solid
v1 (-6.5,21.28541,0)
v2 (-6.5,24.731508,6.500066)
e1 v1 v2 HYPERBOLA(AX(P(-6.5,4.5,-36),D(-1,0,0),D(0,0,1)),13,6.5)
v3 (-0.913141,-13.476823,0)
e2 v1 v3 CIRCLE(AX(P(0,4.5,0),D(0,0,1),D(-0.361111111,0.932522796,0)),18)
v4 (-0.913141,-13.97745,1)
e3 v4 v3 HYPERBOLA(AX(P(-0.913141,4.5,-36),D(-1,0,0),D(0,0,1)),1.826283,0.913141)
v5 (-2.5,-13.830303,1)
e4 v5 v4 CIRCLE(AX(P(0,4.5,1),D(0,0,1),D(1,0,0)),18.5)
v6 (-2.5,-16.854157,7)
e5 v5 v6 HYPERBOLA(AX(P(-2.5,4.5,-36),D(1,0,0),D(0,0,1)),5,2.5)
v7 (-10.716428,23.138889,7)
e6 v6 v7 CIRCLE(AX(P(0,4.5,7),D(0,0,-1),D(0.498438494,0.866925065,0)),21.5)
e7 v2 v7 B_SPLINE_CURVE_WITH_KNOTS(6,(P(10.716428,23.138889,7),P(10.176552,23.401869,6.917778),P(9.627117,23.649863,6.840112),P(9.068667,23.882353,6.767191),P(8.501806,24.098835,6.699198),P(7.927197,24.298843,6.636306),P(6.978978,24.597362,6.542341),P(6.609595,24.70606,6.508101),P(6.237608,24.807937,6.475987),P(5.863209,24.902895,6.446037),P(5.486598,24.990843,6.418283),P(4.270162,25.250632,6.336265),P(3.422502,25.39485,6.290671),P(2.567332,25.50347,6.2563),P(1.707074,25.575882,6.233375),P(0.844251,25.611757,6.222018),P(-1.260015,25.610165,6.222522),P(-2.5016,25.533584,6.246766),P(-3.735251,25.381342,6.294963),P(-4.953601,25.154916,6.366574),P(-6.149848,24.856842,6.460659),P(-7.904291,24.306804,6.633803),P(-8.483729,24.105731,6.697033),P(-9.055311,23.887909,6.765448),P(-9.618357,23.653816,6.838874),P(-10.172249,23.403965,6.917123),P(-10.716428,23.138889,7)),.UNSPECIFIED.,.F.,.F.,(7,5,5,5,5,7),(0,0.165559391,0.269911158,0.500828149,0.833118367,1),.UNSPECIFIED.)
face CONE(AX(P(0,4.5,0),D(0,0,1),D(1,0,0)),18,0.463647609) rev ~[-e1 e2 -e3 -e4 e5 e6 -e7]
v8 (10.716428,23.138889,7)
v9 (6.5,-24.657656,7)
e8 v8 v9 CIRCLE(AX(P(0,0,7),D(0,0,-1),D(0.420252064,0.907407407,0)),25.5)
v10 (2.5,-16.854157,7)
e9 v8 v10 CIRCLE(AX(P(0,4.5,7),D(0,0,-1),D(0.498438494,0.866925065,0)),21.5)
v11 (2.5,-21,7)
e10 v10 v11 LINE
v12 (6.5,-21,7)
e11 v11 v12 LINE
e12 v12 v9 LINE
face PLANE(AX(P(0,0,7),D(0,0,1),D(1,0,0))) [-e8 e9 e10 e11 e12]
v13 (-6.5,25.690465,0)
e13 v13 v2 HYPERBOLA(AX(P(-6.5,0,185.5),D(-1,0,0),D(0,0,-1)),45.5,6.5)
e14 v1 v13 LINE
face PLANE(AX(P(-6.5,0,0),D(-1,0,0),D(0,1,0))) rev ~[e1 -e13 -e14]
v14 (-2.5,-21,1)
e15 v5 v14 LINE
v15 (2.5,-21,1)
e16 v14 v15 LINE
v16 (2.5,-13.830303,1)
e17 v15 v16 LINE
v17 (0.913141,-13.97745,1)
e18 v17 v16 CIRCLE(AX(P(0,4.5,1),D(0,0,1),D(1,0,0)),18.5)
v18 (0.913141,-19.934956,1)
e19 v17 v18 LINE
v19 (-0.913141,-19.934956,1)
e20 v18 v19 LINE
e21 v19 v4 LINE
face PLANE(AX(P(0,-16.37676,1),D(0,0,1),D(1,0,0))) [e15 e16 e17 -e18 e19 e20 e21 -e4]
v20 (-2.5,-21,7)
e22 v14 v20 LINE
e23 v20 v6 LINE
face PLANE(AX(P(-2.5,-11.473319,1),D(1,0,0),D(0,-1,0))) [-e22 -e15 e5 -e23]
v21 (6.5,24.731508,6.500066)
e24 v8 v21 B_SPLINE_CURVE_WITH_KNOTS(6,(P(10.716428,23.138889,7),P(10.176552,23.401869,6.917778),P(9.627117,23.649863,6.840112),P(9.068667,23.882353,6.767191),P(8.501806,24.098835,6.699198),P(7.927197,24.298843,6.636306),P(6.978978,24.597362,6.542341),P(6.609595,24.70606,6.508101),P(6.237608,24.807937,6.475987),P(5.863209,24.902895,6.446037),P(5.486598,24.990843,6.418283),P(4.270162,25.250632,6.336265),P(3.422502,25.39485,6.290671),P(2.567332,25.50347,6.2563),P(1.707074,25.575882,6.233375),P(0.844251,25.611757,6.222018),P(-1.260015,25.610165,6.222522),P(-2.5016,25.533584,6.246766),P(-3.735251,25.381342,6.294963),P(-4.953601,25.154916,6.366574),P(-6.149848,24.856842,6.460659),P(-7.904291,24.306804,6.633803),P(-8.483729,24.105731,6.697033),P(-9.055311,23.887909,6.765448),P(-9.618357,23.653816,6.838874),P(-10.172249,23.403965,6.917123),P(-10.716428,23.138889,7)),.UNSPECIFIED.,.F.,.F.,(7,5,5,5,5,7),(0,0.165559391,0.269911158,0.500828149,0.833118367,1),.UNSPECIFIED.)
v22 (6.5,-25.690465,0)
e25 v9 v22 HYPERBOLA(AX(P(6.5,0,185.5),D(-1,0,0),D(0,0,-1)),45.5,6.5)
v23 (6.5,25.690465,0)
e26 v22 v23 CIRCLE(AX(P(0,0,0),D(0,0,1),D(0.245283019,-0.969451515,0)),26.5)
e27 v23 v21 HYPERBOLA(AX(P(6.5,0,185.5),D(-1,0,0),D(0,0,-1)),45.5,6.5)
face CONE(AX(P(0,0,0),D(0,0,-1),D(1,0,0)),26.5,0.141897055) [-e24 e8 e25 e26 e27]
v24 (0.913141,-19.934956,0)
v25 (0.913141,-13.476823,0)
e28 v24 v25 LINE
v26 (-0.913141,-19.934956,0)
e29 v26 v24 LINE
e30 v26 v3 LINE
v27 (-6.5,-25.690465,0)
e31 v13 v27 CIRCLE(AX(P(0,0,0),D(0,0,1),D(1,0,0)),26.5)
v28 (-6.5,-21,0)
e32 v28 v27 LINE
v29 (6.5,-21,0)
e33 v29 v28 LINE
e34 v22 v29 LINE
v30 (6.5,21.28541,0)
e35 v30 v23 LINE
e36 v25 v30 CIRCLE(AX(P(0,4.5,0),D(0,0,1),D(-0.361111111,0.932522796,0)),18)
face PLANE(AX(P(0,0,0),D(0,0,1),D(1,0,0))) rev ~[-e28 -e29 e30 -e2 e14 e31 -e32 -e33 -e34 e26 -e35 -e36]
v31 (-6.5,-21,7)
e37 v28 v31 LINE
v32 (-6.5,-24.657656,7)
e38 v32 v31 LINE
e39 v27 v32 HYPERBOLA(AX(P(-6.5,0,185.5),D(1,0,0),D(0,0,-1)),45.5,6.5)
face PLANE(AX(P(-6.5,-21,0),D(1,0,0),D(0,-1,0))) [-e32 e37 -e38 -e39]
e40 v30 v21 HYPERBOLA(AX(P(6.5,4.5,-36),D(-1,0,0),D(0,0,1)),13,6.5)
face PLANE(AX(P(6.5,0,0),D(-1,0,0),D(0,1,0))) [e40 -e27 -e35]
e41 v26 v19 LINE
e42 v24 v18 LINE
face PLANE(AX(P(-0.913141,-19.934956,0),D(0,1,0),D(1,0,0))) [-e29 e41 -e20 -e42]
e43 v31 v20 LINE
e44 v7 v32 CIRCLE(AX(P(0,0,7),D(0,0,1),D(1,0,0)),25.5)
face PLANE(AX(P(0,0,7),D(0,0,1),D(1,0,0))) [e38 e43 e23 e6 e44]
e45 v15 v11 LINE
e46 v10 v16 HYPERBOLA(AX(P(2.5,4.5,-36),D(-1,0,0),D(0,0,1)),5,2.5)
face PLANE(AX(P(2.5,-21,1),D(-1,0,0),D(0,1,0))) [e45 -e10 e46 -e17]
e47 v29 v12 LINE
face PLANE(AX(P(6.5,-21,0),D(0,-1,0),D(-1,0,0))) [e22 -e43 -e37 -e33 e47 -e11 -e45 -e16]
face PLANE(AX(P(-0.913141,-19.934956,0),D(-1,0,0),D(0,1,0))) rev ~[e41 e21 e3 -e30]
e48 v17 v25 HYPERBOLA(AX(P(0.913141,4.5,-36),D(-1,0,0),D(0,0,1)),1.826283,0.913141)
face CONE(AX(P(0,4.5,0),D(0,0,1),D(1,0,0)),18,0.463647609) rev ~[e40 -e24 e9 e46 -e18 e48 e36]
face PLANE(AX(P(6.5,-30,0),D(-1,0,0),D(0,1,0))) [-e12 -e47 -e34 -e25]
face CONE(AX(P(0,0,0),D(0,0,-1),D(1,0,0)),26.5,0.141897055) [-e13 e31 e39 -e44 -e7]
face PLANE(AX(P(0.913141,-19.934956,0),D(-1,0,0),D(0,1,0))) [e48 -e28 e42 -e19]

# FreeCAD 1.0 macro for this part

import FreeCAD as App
import Part
import Sketcher
from FreeCAD import Vector
Q = App.Units.Quantity


def add_polygon(sketch, points):
    """Adds a closed chain of lines whose ends are joined by coincident constraints."""
    first, n = sketch.GeometryCount, len(points)
    for a, b in zip(points, points[1:] + points[:1]):
        sketch.addGeometry(Part.LineSegment(App.Vector(*a, 0), App.Vector(*b, 0)), False)
    for i in range(n):
        sketch.addConstraint(Sketcher.Constraint("Coincident", first + i, 2, first + (i + 1) % n, 1))

doc = App.newDocument("Part")
body = doc.addObject("PartDesign::Body", "Body")

# Sketch on XY plane
sketch1 = body.newObject("Sketcher::SketchObject", "Sketch")
sketch1.AttachmentSupport = (doc.getObject("XY_Plane"), [""])
sketch1.MapMode = "FlatFace"
sketch1.addGeometry(Part.Circle(Vector(0, 0, 0), Vector(0, 0, 1), 26), False)
sketch1.addConstraint([
    Sketcher.Constraint("Coincident", 0, 3, -1, 1),
    Sketcher.Constraint("Diameter", 0, Q("53 mm")),
])

# Sketch on XY plane
sketch2 = body.newObject("Sketcher::SketchObject", "Sketch001")
sketch2.AttachmentSupport = (doc.getObject("XY_Plane"), [""])
sketch2.MapMode = "FlatFace"
sketch2.AttachmentOffset = App.Placement(Vector(0, 0, 7), App.Rotation())
sketch2.addGeometry(Part.Circle(Vector(0, 0, 0), Vector(0, 0, 1), 26), False)
sketch2.addConstraint([
    Sketcher.Constraint("Coincident", 0, 3, -1, 1),
    Sketcher.Constraint("Diameter", 0, Q("51 mm")),
])

additiveloft = body.newObject("PartDesign::AdditiveLoft", "AdditiveLoft")
additiveloft.Profile = sketch1
additiveloft.Sections = [sketch2]

# Sketch on XY plane
sketch3 = body.newObject("Sketcher::SketchObject", "Sketch002")
sketch3.AttachmentSupport = (doc.getObject("XY_Plane"), [""])
sketch3.MapMode = "FlatFace"
sketch3.addGeometry(Part.Circle(Vector(0, 4, 0), Vector(0, 0, 1), 18), False)
sketch3.addConstraint([
    Sketcher.Constraint("PointOnObject", 0, 3, -2),
    Sketcher.Constraint("Diameter", 0, Q("36 mm")),
    Sketcher.Constraint("DistanceY", -1, 1, 0, 3, Q("4.5 mm")),
])

# Sketch on XY plane
sketch4 = body.newObject("Sketcher::SketchObject", "Sketch003")
sketch4.AttachmentSupport = (doc.getObject("XY_Plane"), [""])
sketch4.MapMode = "FlatFace"
sketch4.AttachmentOffset = App.Placement(Vector(0, 0, 7), App.Rotation())
sketch4.addGeometry(Part.Circle(Vector(0, 4, 0), Vector(0, 0, 1), 22), False)
sketch4.addConstraint([
    Sketcher.Constraint("PointOnObject", 0, 3, -2),
    Sketcher.Constraint("Diameter", 0, Q("43 mm")),
    Sketcher.Constraint("DistanceY", -1, 1, 0, 3, Q("4.5 mm")),
])

subtractiveloft = body.newObject("PartDesign::SubtractiveLoft", "SubtractiveLoft")
subtractiveloft.Profile = sketch3
subtractiveloft.Sections = [sketch4]

# Sketch on XY plane
sketch5 = body.newObject("Sketcher::SketchObject", "Sketch004")
sketch5.AttachmentSupport = (doc.getObject("XY_Plane"), [""])
sketch5.MapMode = "FlatFace"
add_polygon(sketch5, [(-6, 33), (-6, 0), (6, 0), (6, 33)])  # lines 0-3
add_polygon(sketch5, [(-6, -21), (-6, -30), (6, -30), (6, -21)])  # lines 4-7
sketch5.addConstraint([
    Sketcher.Constraint("Vertical", 0),
    Sketcher.Constraint("Horizontal", 1),
    Sketcher.Constraint("Vertical", 2),
    Sketcher.Constraint("Horizontal", 3),
    Sketcher.Constraint("Vertical", 4),
    Sketcher.Constraint("Horizontal", 5),
    Sketcher.Constraint("Vertical", 6),
    Sketcher.Constraint("Horizontal", 7),
    Sketcher.Constraint("Symmetric", 0, 2, 1, 2, -1, 1),
    Sketcher.Constraint("Vertical", 3, 2, 4, 2),
    Sketcher.Constraint("Vertical", 2, 2, 5, 2),
    Sketcher.Constraint("DistanceX", 1, 1, 1, 2, Q("13 mm")),
    Sketcher.Constraint("DistanceY", 4, 2, 4, 1, Q("9 mm")),
    Sketcher.Constraint("DistanceY", 4, 2, -1, 1, Q("30 mm")),
    Sketcher.Constraint("DistanceY", 0, 2, 0, 1, Q("32.702702 mm")),
])
pocket1 = body.newObject("PartDesign::Pocket", "Pocket")
pocket1.Profile = sketch5
pocket1.Length = 25
pocket1.Reversed = True

# Sketch on XY plane
sketch6 = body.newObject("Sketcher::SketchObject", "Sketch005")
sketch6.AttachmentSupport = (doc.getObject("XY_Plane"), [""])
sketch6.MapMode = "FlatFace"
sketch6.AttachmentOffset = App.Placement(Vector(0, 0, 1), App.Rotation())
add_polygon(sketch6, [(-2.5, -11.5), (-2.5, -21), (2.5, -21), (2.5, -11.5), (0.9, -11.5), (0.9, -19.9), (-0.9, -19.9), (-0.9, -11.5)])  # lines 0-7
sketch6.addConstraint([
    Sketcher.Constraint("Vertical", 0),
    Sketcher.Constraint("Horizontal", 1),
    Sketcher.Constraint("Vertical", 2),
    Sketcher.Constraint("Horizontal", 3),
    Sketcher.Constraint("Vertical", 4),
    Sketcher.Constraint("Horizontal", 5),
    Sketcher.Constraint("Vertical", 6),
    Sketcher.Constraint("Horizontal", 7),
    Sketcher.Constraint("Symmetric", 3, 2, 6, 2, -2),
    Sketcher.Constraint("Equal", 3, 7),
    Sketcher.Constraint("DistanceX", 1, 1, 1, 2, Q("5 mm")),
    Sketcher.Constraint("DistanceY", 0, 2, -1, 1, Q("21 mm")),
    Sketcher.Constraint("DistanceX", 3, 2, 3, 1, Q("1.586859 mm")),
    Sketcher.Constraint("DistanceY", 0, 2, 0, 1, Q("9.526681 mm")),
    Sketcher.Constraint("DistanceY", 4, 2, 4, 1, Q("8.461636 mm")),
])
pocket2 = body.newObject("PartDesign::Pocket", "Pocket001")
pocket2.Profile = sketch6
pocket2.Length = 24
pocket2.Reversed = True

# Sketch on XY plane
sketch7 = body.newObject("Sketcher::SketchObject", "Sketch006")
sketch7.AttachmentSupport = (doc.getObject("XY_Plane"), [""])
sketch7.MapMode = "FlatFace"
add_polygon(sketch7, [(-0.9, -11.5), (-0.9, -19.9), (0.9, -19.9), (0.9, -11.5)])  # lines 0-3
sketch7.addConstraint([
    Sketcher.Constraint("Vertical", 0),
    Sketcher.Constraint("Horizontal", 1),
    Sketcher.Constraint("Vertical", 2),
    Sketcher.Constraint("Horizontal", 3),
    Sketcher.Constraint("DistanceX", 1, 1, 1, 2, Q("1.826283 mm")),
    Sketcher.Constraint("DistanceY", 0, 2, 0, 1, Q("8.461636 mm")),
    Sketcher.Constraint("DistanceX", 0, 2, -1, 1, Q("0.913141 mm")),
    Sketcher.Constraint("DistanceY", 2, 2, -1, 1, Q("11.473319 mm")),
])
pocket3 = body.newObject("PartDesign::Pocket", "Pocket002")
pocket3.Profile = sketch7
pocket3.Length = 25
pocket3.Reversed = True

doc.recompute()
